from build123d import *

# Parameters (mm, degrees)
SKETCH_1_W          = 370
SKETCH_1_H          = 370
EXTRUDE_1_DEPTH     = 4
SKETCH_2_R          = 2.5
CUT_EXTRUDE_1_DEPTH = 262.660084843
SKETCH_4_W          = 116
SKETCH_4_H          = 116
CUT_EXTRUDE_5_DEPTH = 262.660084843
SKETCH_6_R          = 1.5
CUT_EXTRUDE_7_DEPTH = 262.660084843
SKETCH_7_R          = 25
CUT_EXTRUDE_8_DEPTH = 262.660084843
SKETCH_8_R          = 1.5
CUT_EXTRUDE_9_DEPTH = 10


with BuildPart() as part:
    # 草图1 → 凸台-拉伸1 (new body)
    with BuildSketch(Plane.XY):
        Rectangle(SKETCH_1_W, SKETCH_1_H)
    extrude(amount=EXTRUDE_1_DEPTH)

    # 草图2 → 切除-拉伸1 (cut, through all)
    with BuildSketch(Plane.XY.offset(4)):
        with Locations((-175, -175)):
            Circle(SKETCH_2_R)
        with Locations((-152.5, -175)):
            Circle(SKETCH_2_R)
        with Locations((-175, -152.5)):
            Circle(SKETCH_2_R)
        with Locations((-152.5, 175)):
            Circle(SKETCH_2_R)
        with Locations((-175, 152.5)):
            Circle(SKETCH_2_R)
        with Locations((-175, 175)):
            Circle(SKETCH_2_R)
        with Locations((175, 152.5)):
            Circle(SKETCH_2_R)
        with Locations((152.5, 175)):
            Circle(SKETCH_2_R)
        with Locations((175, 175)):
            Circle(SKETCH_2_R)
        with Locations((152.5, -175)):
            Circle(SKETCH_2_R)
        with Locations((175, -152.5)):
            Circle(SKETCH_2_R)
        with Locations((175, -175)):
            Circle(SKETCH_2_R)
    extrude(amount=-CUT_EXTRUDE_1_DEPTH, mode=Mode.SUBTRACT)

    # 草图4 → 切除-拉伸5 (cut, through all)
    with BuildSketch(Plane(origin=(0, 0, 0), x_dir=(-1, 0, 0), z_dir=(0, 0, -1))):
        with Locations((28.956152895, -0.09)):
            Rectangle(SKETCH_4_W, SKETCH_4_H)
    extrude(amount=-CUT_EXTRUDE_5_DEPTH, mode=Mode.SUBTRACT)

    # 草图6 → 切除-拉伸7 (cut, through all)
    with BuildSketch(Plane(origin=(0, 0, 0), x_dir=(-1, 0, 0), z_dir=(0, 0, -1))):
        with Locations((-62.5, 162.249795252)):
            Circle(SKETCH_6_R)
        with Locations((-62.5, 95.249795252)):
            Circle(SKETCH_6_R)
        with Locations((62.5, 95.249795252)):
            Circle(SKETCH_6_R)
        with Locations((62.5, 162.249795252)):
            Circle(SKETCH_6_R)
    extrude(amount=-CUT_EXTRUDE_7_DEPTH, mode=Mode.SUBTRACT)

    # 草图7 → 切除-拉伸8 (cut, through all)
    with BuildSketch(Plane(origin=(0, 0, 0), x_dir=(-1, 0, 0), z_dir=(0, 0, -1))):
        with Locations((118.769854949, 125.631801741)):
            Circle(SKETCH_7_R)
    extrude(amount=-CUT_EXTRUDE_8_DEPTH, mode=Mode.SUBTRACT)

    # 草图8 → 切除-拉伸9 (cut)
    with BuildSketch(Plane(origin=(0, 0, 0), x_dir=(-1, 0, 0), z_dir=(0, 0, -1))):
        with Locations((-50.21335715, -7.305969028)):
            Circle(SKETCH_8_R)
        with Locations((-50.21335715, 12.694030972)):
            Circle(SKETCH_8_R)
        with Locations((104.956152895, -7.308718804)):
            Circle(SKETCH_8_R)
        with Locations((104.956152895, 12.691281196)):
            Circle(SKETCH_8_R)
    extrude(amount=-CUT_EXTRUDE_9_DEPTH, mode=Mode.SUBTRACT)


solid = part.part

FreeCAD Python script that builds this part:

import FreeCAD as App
import Part
import Sketcher

V = App.Vector
Q = App.Units.Quantity

doc = App.newDocument("Part")
body = doc.addObject("PartDesign::Body", "Body")

sketch1 = doc.addObject("Sketcher::SketchObject", "Sketch")
body.addObject(sketch1)
sketch1.AttachmentSupport = (doc.XY_Plane, [""])
sketch1.MapMode = "FlatFace"
sketch1.addGeometry([
    Part.LineSegment(V(-185, 185, 0), V(-185, -185, 0)),
    Part.LineSegment(V(-185, -185, 0), V(185, -185, 0)),
    Part.LineSegment(V(185, -185, 0), V(185, 185, 0)),
    Part.LineSegment(V(185, 185, 0), V(-185, 185, 0)),
], False)
sketch1.addConstraint([
    Sketcher.Constraint("Coincident", 0, 2, 1, 1),
    Sketcher.Constraint("Coincident", 1, 2, 2, 1),
    Sketcher.Constraint("Coincident", 2, 2, 3, 1),
    Sketcher.Constraint("Coincident", 3, 2, 0, 1),
    Sketcher.Constraint("Vertical", 0),
    Sketcher.Constraint("Horizontal", 1),
    Sketcher.Constraint("Vertical", 2),
    Sketcher.Constraint("Horizontal", 3),
    Sketcher.Constraint("Symmetric", 0, 2, 2, 2, -1, 1),
    Sketcher.Constraint("Equal", 3, 0),
    Sketcher.Constraint("DistanceX", 1, 1, 1, 2, Q("370 mm")),
])
pad1 = doc.addObject("PartDesign::Pad", "Pad")
body.addObject(pad1)
pad1.Profile = sketch1
pad1.Length = 4

sketch2 = doc.addObject("Sketcher::SketchObject", "Sketch001")
body.addObject(sketch2)
sketch2.AttachmentSupport = (doc.XY_Plane, [""])
sketch2.MapMode = "FlatFace"
sketch2.AttachmentOffset = App.Placement(V(0, 0, 4), App.Rotation())
sketch2.addGeometry([
    Part.Circle(V(-175, -175, 0), V(0, 0, 1), 2.5),
    Part.Circle(V(-152.5, -175, 0), V(0, 0, 1), 2.5),
    Part.Circle(V(-175, -152.5, 0), V(0, 0, 1), 2.5),
    Part.Circle(V(-152.5, 175, 0), V(0, 0, 1), 2.5),
    Part.Circle(V(-175, 152.5, 0), V(0, 0, 1), 2.5),
    Part.Circle(V(-175, 175, 0), V(0, 0, 1), 2.5),
    Part.Circle(V(175, 152.5, 0), V(0, 0, 1), 2.5),
    Part.Circle(V(152.5, 175, 0), V(0, 0, 1), 2.5),
    Part.Circle(V(175, 175, 0), V(0, 0, 1), 2.5),
    Part.Circle(V(152.5, -175, 0), V(0, 0, 1), 2.5),
    Part.Circle(V(175, -152.5, 0), V(0, 0, 1), 2.5),
    Part.Circle(V(175, -175, 0), V(0, 0, 1), 2.5),
], False)
sketch2.addConstraint([
    Sketcher.Constraint("Equal", 0, 1),
    Sketcher.Constraint("Equal", 1, 2),
    Sketcher.Constraint("Equal", 2, 3),
    Sketcher.Constraint("Equal", 3, 4),
    Sketcher.Constraint("Equal", 4, 5),
    Sketcher.Constraint("Equal", 5, 6),
    Sketcher.Constraint("Equal", 6, 7),
    Sketcher.Constraint("Equal", 7, 8),
    Sketcher.Constraint("Equal", 8, 9),
    Sketcher.Constraint("Equal", 9, 10),
    Sketcher.Constraint("Equal", 10, 11),
    Sketcher.Constraint("Symmetric", 2, 3, 6, 3, -1, 1),
    Sketcher.Constraint("Symmetric", 1, 3, 7, 3, -1, 1),
    Sketcher.Constraint("Symmetric", 0, 3, 8, 3, -1, 1),
    Sketcher.Constraint("Symmetric", 3, 3, 9, 3, -1, 1),
    Sketcher.Constraint("Symmetric", 4, 3, 10, 3, -1, 1),
    Sketcher.Constraint("Symmetric", 5, 3, 11, 3, -1, 1),
    Sketcher.Constraint("Symmetric", 4, 3, 6, 3, -2),
    Sketcher.Constraint("Symmetric", 3, 3, 7, 3, -2),
    Sketcher.Constraint("Symmetric", 5, 3, 8, 3, -2),
    Sketcher.Constraint("Horizontal", 0, 3, 1, 3),
    Sketcher.Constraint("Vertical", 0, 3, 2, 3),
    Sketcher.Constraint("Diameter", 0, Q("5 mm")),
    Sketcher.Constraint("DistanceX", 0, 3, -1, 1, Q("175 mm")),
    Sketcher.Constraint("DistanceY", 0, 3, -1, 1, Q("175 mm")),
    Sketcher.Constraint("DistanceY", 2, 3, 4, 3, Q("305 mm")),
    Sketcher.Constraint("DistanceX", 3, 3, 7, 3, Q("305 mm")),
])
pocket1 = doc.addObject("PartDesign::Pocket", "Pocket")
body.addObject(pocket1)
pocket1.Profile = sketch2
pocket1.Type = "ThroughAll"

sketch3 = doc.addObject("Sketcher::SketchObject", "Sketch002")
body.addObject(sketch3)
sketch3.AttachmentSupport = (doc.XY_Plane, [""])
sketch3.MapMode = "FlatFace"
sketch3.addGeometry([
    Part.LineSegment(V(29, 58, 0), V(29, -58, 0)),
    Part.LineSegment(V(29, -58, 0), V(-87, -58, 0)),
    Part.LineSegment(V(-87, -58, 0), V(-87, 58, 0)),
    Part.LineSegment(V(-87, 58, 0), V(29, 58, 0)),
], False)
sketch3.addConstraint([
    Sketcher.Constraint("Coincident", 0, 2, 1, 1),
    Sketcher.Constraint("Coincident", 1, 2, 2, 1),
    Sketcher.Constraint("Coincident", 2, 2, 3, 1),
    Sketcher.Constraint("Coincident", 3, 2, 0, 1),
    Sketcher.Constraint("Vertical", 0),
    Sketcher.Constraint("Horizontal", 1),
    Sketcher.Constraint("Vertical", 2),
    Sketcher.Constraint("Horizontal", 3),
    Sketcher.Constraint("Equal", 3, 0),
    Sketcher.Constraint("DistanceX", 1, 2, 1, 1, Q("116 mm")),
    Sketcher.Constraint("DistanceY", 0, 2, -1, 1, Q("58.09 mm")),
    Sketcher.Constraint("DistanceX", -1, 1, 0, 2, Q("29.043847 mm")),
])
pocket2 = doc.addObject("PartDesign::Pocket", "Pocket001")
body.addObject(pocket2)
pocket2.Profile = sketch3
pocket2.Type = "ThroughAll"
pocket2.Reversed = True

sketch4 = doc.addObject("Sketcher::SketchObject", "Sketch003")
body.addObject(sketch4)
sketch4.AttachmentSupport = (doc.XY_Plane, [""])
sketch4.MapMode = "FlatFace"
sketch4.addGeometry([
    Part.Circle(V(62.5, 162.2, 0), V(0, 0, 1), 1.5),
    Part.Circle(V(62.5, 95.2, 0), V(0, 0, 1), 1.5),
    Part.Circle(V(-62.5, 95.2, 0), V(0, 0, 1), 1.5),
    Part.Circle(V(-62.5, 162.2, 0), V(0, 0, 1), 1.5),
], False)
sketch4.addConstraint([
    Sketcher.Constraint("Equal", 0, 1),
    Sketcher.Constraint("Equal", 1, 2),
    Sketcher.Constraint("Equal", 2, 3),
    Sketcher.Constraint("Symmetric", 1, 3, 2, 3, -2),
    Sketcher.Constraint("Symmetric", 0, 3, 3, 3, -2),
    Sketcher.Constraint("Vertical", 0, 3, 1, 3),
    Sketcher.Constraint("Diameter", 0, Q("3 mm")),
    Sketcher.Constraint("DistanceY", 1, 3, 0, 3, Q("67 mm")),
    Sketcher.Constraint("DistanceX", 2, 3, 1, 3, Q("125 mm")),
    Sketcher.Constraint("DistanceY", -1, 1, 0, 3, Q("162.249795 mm")),
])
pocket3 = doc.addObject("PartDesign::Pocket", "Pocket002")
body.addObject(pocket3)
pocket3.Profile = sketch4
pocket3.Type = "ThroughAll"
pocket3.Reversed = True

sketch5 = doc.addObject("Sketcher::SketchObject", "Sketch004")
body.addObject(sketch5)
sketch5.AttachmentSupport = (doc.XY_Plane, [""])
sketch5.MapMode = "FlatFace"
sketch5.addGeometry(Part.Circle(V(-119, 126, 0), V(0, 0, 1), 25), False)
sketch5.addConstraint([
    Sketcher.Constraint("Diameter", 0, Q("50 mm")),
    Sketcher.Constraint("DistanceY", -1, 1, 0, 3, Q("125.631802 mm")),
    Sketcher.Constraint("DistanceX", 0, 3, -1, 1, Q("118.769855 mm")),
])
pocket4 = doc.addObject("PartDesign::Pocket", "Pocket003")
body.addObject(pocket4)
pocket4.Profile = sketch5
pocket4.Type = "ThroughAll"
pocket4.Reversed = True

sketch6 = doc.addObject("Sketcher::SketchObject", "Sketch005")
body.addObject(sketch6)
sketch6.AttachmentSupport = (doc.XY_Plane, [""])
sketch6.MapMode = "FlatFace"
sketch6.addGeometry([
    Part.Circle(V(50.2, -7.3, 0), V(0, 0, 1), 1.5),
    Part.Circle(V(50.2, 12.7, 0), V(0, 0, 1), 1.5),
    Part.Circle(V(-105, -7.3, 0), V(0, 0, 1), 1.5),
    Part.Circle(V(-105, 12.7, 0), V(0, 0, 1), 1.5),
], False)
sketch6.addConstraint([
    Sketcher.Constraint("Equal", 0, 1),
    Sketcher.Constraint("Equal", 1, 2),
    Sketcher.Constraint("Equal", 2, 3),
    Sketcher.Constraint("Vertical", 0, 3, 1, 3),
    Sketcher.Constraint("Vertical", 2, 3, 3, 3),
    Sketcher.Constraint("Diameter", 0, Q("3 mm")),
    Sketcher.Constraint("DistanceY", 0, 3, 1, 3, Q("20 mm")),
    Sketcher.Constraint("DistanceY", 2, 3, 3, 3, Q("20 mm")),
    Sketcher.Constraint("DistanceY", 0, 3, -1, 1, Q("7.305969 mm")),
    Sketcher.Constraint("DistanceY", 2, 3, -1, 1, Q("7.308719 mm")),
    Sketcher.Constraint("DistanceX", 2, 3, 0, 3, Q("155.16951 mm")),
    Sketcher.Constraint("DistanceX", -1, 1, 0, 3, Q("50.213357 mm")),
])
pocket5 = doc.addObject("PartDesign::Pocket", "Pocket004")
body.addObject(pocket5)
pocket5.Profile = sketch6
pocket5.Length = 10
pocket5.Reversed = True

doc.recompute()
